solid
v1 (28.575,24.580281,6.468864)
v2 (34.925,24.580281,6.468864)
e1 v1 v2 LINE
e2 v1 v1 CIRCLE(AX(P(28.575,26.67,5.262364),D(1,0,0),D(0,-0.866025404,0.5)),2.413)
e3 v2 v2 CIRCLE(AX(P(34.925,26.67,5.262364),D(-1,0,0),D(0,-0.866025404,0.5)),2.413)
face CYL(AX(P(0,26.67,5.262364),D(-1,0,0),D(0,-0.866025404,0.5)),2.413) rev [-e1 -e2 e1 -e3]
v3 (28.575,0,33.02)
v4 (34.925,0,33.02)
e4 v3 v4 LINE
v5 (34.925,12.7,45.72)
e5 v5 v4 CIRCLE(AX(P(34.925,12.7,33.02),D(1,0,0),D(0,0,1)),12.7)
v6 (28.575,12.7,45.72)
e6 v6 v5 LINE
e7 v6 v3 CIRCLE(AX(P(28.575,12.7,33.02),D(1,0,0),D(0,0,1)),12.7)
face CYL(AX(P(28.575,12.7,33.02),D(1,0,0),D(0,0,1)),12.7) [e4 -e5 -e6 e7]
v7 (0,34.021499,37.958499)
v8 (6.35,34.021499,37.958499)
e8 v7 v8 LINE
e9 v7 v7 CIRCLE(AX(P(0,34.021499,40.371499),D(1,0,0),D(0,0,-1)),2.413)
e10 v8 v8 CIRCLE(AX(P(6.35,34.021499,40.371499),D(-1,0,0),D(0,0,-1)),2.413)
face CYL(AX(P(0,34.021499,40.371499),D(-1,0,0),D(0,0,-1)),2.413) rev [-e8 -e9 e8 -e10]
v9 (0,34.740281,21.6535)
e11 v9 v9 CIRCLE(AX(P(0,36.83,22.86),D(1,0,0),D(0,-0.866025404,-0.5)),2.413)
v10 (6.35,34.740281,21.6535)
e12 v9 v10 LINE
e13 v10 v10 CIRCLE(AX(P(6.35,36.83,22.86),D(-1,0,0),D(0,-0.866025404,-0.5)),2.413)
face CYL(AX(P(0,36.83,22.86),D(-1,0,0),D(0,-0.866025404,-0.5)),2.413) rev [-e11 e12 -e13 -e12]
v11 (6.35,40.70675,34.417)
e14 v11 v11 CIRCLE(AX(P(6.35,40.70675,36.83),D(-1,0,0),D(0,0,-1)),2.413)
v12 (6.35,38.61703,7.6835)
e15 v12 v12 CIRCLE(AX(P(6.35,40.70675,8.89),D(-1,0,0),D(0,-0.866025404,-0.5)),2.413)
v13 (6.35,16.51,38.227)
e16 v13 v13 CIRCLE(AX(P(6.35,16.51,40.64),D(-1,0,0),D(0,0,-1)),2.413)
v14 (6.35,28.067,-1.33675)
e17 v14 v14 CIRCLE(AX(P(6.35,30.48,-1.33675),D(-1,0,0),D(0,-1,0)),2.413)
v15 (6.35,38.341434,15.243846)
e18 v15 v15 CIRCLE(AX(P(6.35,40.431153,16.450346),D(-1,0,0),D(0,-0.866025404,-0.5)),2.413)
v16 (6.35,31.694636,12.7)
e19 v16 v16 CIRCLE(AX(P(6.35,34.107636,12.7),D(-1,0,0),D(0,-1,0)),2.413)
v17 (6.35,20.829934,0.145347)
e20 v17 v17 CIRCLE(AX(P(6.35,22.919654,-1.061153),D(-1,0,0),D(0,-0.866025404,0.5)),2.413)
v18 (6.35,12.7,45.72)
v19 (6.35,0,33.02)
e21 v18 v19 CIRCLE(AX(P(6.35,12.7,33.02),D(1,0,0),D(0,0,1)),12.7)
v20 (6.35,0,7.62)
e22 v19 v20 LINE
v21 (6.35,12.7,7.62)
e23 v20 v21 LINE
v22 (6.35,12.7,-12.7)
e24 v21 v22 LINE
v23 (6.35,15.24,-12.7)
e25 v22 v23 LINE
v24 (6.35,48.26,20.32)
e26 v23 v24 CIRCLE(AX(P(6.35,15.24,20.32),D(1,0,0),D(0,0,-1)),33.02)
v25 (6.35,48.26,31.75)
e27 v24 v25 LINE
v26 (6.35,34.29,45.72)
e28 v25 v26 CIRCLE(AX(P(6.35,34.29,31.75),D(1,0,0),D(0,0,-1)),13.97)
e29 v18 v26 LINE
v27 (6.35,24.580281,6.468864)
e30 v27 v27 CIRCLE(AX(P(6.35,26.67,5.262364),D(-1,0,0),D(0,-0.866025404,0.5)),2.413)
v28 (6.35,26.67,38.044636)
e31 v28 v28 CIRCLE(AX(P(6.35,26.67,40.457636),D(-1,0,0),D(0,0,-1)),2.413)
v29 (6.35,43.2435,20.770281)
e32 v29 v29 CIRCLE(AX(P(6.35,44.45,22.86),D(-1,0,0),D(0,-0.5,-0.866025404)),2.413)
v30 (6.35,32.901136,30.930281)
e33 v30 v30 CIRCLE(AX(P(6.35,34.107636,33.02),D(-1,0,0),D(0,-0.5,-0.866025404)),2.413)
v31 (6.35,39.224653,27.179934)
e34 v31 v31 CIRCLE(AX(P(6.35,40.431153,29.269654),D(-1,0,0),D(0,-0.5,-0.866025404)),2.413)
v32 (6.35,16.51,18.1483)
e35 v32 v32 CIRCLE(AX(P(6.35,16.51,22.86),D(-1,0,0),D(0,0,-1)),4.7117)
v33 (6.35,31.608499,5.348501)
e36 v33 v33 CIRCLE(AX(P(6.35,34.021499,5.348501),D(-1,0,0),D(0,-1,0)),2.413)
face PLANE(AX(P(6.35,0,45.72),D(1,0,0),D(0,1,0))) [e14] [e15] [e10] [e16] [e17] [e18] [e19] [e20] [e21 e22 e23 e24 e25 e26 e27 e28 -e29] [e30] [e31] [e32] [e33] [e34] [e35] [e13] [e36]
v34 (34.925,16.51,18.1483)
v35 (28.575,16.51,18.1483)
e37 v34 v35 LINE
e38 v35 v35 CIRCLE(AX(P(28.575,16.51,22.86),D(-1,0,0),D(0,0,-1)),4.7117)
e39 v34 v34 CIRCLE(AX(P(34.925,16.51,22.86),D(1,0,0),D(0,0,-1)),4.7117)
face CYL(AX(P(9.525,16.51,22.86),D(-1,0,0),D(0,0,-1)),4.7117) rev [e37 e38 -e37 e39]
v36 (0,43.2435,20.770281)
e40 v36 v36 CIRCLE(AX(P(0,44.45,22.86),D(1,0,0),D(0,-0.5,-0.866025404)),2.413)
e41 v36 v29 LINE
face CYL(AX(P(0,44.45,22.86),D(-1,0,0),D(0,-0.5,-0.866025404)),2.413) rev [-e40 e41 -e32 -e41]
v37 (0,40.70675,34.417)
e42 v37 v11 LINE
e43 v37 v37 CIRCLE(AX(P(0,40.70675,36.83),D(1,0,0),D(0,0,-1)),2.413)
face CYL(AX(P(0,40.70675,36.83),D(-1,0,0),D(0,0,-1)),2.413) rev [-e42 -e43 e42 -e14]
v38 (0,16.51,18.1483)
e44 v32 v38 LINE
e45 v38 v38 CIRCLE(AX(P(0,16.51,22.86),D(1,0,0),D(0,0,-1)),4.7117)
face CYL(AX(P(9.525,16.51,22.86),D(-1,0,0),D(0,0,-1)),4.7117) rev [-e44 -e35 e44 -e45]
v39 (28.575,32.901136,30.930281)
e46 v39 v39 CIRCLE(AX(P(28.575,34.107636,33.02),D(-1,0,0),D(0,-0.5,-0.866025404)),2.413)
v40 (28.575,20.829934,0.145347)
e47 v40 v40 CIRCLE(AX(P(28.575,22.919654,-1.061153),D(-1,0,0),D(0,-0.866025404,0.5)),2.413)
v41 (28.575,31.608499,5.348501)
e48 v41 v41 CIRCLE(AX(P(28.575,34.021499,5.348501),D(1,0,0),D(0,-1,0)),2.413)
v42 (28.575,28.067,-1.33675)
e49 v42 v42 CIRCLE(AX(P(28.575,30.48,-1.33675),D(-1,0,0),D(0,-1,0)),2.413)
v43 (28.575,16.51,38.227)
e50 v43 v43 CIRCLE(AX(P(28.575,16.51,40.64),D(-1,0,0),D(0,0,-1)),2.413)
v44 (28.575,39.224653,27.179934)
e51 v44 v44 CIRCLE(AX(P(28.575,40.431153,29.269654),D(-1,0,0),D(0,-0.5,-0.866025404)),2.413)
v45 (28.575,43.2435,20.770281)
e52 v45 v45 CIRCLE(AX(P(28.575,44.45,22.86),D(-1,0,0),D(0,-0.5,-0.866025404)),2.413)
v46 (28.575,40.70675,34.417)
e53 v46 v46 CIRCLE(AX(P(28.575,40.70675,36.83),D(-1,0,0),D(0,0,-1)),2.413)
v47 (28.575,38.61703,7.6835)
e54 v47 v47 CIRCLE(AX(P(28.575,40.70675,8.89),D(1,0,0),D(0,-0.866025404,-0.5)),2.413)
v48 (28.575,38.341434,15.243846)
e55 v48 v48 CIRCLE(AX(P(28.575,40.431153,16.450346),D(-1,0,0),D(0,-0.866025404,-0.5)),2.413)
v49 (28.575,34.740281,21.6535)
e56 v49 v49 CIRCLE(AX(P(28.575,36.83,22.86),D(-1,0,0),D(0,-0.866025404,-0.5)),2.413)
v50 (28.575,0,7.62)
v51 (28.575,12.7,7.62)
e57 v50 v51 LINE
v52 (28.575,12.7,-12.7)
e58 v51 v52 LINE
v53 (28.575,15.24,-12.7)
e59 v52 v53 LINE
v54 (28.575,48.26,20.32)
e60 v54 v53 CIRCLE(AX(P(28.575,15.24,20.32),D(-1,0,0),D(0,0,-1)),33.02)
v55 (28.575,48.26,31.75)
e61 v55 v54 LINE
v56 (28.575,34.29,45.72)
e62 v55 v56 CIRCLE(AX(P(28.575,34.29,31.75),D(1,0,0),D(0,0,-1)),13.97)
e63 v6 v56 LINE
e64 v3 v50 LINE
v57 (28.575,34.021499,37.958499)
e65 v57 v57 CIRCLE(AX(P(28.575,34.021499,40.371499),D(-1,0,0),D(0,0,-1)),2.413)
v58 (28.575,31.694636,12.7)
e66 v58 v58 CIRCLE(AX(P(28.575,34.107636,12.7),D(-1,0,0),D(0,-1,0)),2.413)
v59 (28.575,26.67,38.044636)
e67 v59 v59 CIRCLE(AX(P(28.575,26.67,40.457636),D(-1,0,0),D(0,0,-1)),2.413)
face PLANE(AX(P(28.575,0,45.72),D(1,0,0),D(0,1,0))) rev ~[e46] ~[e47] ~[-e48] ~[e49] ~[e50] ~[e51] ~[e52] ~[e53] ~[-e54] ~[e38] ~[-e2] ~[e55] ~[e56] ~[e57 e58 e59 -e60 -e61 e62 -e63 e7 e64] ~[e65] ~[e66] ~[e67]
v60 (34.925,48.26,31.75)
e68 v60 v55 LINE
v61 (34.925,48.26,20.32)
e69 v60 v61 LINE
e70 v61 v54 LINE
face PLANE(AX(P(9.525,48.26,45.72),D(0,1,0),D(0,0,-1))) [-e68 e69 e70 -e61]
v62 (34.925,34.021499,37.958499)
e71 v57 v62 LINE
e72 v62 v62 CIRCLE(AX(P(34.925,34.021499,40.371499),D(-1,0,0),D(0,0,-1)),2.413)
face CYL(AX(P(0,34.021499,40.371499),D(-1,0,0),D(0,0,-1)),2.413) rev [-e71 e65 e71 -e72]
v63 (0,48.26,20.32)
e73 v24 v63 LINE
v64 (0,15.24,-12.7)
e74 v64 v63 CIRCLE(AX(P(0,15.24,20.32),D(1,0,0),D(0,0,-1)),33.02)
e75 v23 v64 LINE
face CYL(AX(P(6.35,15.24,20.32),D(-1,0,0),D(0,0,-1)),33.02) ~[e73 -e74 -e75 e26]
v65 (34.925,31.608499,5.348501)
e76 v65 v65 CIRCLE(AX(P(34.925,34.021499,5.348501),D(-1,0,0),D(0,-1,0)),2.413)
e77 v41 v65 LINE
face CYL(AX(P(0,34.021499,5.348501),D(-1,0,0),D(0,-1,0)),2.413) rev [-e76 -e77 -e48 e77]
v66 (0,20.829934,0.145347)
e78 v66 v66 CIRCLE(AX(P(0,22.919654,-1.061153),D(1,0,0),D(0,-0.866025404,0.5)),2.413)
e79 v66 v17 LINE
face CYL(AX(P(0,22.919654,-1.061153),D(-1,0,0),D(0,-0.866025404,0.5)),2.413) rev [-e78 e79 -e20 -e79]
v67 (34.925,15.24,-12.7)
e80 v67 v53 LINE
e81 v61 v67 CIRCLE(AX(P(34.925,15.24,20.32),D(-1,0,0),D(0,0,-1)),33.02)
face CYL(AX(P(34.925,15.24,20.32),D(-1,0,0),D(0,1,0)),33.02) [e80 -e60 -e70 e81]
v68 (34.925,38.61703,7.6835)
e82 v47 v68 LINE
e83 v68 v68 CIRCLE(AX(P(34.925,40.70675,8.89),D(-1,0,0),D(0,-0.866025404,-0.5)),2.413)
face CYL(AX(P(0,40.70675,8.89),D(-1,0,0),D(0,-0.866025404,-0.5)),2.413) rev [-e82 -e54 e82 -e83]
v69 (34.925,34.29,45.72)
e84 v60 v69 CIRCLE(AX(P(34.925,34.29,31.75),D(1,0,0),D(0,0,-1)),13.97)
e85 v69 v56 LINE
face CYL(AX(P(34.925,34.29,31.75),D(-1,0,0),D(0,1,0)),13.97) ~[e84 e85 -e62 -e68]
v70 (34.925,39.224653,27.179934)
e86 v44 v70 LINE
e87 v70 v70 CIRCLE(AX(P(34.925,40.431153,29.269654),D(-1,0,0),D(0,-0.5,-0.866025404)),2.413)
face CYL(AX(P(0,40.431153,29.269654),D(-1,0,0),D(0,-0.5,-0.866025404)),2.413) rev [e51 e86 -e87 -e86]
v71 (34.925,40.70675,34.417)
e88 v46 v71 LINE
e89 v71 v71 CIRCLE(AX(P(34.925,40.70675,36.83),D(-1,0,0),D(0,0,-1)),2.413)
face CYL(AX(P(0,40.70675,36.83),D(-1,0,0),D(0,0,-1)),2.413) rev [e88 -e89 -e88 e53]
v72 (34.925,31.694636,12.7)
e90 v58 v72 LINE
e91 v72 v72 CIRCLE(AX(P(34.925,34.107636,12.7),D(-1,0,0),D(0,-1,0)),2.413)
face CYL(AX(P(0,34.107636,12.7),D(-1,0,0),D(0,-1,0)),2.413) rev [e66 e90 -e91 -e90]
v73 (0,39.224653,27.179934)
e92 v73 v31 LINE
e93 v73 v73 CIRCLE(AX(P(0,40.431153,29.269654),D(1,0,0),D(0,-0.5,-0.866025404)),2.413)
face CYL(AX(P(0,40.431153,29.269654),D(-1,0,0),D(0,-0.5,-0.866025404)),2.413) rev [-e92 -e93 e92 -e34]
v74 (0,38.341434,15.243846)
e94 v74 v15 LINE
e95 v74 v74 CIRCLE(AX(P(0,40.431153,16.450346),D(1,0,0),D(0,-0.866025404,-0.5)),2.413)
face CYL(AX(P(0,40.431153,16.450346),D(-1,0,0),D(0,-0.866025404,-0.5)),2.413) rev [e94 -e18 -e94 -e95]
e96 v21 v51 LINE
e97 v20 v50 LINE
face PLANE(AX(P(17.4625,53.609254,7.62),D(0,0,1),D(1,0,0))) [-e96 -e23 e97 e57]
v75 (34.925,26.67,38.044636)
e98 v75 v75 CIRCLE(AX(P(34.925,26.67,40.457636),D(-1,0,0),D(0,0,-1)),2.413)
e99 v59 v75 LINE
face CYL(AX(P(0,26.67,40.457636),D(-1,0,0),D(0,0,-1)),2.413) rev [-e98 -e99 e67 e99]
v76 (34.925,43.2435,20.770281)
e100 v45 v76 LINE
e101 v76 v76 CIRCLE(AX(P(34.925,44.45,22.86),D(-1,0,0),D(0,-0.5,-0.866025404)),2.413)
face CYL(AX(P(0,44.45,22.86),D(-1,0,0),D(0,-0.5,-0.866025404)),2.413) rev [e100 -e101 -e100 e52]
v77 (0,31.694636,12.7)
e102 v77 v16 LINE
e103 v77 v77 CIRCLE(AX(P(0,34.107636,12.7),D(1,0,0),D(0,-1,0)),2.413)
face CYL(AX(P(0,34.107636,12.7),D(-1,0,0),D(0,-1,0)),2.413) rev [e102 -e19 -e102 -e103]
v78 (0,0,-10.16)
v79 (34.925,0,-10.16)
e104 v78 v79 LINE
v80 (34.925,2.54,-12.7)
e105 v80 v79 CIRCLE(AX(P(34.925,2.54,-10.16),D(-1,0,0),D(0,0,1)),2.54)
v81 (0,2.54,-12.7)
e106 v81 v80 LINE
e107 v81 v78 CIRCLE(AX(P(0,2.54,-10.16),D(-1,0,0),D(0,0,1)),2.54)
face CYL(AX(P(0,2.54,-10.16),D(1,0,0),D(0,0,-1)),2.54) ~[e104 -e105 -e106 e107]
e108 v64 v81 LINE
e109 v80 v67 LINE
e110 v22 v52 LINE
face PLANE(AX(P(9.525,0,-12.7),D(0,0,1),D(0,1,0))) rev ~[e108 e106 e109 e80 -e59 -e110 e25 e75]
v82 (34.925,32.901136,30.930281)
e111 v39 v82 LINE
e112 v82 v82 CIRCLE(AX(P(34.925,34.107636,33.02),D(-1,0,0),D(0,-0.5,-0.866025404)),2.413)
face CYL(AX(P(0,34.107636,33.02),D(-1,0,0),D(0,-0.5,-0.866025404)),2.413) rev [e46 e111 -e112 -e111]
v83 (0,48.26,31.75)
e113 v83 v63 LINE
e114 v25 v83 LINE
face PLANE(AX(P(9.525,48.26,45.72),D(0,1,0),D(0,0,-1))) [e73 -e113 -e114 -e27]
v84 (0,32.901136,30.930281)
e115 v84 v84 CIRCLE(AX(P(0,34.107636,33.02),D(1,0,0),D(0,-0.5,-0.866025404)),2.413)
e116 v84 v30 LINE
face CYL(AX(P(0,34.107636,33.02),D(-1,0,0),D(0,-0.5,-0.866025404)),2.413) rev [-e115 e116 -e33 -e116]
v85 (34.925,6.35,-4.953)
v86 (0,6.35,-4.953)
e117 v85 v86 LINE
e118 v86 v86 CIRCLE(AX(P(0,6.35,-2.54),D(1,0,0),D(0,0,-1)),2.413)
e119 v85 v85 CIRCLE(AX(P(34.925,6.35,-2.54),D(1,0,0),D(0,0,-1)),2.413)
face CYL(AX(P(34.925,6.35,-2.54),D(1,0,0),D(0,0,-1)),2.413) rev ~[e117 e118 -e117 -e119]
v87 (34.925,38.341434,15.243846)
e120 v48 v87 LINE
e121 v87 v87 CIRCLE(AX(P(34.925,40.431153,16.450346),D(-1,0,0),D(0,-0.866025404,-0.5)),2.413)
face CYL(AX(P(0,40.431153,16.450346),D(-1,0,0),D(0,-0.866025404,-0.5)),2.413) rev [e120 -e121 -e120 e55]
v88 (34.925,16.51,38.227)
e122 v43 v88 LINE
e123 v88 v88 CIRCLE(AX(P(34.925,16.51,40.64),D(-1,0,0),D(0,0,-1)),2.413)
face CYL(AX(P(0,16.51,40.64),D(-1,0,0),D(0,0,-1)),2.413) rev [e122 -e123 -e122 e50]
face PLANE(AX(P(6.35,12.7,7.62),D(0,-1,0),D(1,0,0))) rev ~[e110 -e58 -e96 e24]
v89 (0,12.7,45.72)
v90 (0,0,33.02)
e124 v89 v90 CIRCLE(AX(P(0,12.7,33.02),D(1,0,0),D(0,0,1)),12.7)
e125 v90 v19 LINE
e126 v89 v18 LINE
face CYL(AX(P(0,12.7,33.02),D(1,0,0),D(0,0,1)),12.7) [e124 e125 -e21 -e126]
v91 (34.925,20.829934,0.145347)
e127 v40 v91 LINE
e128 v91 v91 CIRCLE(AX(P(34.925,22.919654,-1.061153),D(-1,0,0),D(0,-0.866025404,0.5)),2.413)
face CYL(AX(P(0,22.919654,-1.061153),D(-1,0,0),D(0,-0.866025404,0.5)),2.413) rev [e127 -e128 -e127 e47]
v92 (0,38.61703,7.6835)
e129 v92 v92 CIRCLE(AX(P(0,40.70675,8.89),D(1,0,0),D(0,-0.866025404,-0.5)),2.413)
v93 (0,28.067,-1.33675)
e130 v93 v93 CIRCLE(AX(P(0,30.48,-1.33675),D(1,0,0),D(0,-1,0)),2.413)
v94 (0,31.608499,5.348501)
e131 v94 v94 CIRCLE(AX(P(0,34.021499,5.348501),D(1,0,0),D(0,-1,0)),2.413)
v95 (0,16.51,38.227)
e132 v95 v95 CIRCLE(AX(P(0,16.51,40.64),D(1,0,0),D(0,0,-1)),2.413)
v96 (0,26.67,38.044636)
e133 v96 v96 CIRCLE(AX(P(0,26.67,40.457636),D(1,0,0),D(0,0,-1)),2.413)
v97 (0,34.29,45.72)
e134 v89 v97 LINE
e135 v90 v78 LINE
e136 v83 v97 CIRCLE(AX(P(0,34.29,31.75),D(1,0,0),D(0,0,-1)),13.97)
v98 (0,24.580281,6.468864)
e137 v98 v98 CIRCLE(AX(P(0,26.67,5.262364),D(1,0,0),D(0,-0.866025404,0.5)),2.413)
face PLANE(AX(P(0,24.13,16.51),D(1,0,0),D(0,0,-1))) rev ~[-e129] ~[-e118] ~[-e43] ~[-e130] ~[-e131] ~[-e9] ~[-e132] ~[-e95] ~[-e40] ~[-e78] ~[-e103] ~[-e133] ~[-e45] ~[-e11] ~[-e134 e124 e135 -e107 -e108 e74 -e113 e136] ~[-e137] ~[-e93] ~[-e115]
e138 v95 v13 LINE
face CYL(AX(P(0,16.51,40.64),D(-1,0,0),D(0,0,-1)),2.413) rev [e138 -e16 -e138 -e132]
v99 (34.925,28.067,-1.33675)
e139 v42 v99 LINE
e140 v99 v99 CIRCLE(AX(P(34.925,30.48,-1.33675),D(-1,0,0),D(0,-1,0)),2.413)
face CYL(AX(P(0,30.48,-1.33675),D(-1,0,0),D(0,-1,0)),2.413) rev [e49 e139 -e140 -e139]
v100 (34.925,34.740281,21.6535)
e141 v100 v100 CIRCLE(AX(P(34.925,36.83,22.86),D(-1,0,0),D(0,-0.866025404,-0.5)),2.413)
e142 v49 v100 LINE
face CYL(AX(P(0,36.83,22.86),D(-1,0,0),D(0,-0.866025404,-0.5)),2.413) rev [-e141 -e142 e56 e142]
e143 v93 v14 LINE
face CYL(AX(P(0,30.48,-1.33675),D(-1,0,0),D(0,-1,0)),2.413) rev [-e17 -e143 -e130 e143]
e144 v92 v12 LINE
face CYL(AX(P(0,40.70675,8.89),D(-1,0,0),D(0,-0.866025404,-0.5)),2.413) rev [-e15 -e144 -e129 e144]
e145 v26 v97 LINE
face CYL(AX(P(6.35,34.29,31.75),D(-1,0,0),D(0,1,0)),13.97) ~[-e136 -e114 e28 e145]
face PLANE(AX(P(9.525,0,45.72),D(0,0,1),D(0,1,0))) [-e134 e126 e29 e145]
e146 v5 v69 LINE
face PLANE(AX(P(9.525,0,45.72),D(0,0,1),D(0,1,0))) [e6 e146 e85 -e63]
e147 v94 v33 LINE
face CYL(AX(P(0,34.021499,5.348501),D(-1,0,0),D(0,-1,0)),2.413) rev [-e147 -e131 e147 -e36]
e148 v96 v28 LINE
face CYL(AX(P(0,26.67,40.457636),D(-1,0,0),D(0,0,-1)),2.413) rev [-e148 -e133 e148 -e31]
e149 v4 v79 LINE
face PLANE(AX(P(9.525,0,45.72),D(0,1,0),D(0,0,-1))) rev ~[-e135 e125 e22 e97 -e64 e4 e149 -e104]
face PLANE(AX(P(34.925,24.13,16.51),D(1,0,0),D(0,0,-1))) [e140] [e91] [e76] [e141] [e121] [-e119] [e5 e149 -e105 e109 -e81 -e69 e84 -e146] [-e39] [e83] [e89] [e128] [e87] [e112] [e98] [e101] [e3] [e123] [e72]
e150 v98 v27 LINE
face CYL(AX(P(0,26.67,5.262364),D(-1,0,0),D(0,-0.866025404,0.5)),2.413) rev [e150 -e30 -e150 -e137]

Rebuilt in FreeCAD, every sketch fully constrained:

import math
import FreeCAD as App
import Part
import Sketcher
Q = App.Units.Quantity


def edges_at(feature, points):
    """Names of the edges that pass closest to the given points."""
    edges = feature.Shape.Edges
    near = lambda p: min(range(len(edges)), key=lambda i: edges[i].distToShape(Part.Vertex(*p))[0])
    return sorted({f"Edge{near(p) + 1}" for p in points})


def add_polygon(sketch, points):
    """Adds a closed chain of lines whose ends are joined by coincident constraints."""
    first, n = sketch.GeometryCount, len(points)
    for a, b in zip(points, points[1:] + points[:1]):
        sketch.addGeometry(Part.LineSegment(App.Vector(*a, 0), App.Vector(*b, 0)), False)
    for i in range(n):
        sketch.addConstraint(Sketcher.Constraint("Coincident", first + i, 2, first + (i + 1) % n, 1))

doc = App.newDocument("Part")
body = doc.addObject("PartDesign::Body", "Body")

# Sketch on YZ plane
sketch1 = body.newObject("Sketcher::SketchObject", "Sketch")
sketch1.AttachmentSupport = (doc.getObject("YZ_Plane"), [""])
sketch1.MapMode = "FlatFace"
sketch1.addGeometry(Part.LineSegment(App.Vector(15.2, 12.7, 0), App.Vector(0, 12.7, 0)), False)
sketch1.addGeometry(Part.LineSegment(App.Vector(0, 12.7, 0), App.Vector(0, -156.2, 0)), False)
sketch1.addGeometry(Part.LineSegment(App.Vector(0, -156.2, 0), App.Vector(16.5, -156.2, 0)), False)
sketch1.addGeometry(Part.ArcOfCircle(Part.Circle(App.Vector(16.5, -147.3, 0), App.Vector(0, 0, 1), 8.9), math.radians(-90), math.radians(90)), False)
sketch1.addGeometry(Part.LineSegment(App.Vector(16.5, -138.4, 0), App.Vector(15.2, -138.4, 0)), False)
sketch1.addGeometry(Part.LineSegment(App.Vector(15.2, -138.4, 0), App.Vector(15.2, 12.7, 0)), False)
sketch1.addConstraint(Sketcher.Constraint("Coincident", 0, 2, 1, 1))
sketch1.addConstraint(Sketcher.Constraint("Coincident", 1, 2, 2, 1))
sketch1.addConstraint(Sketcher.Constraint("Tangent", 2, 2, 3, 1))
sketch1.addConstraint(Sketcher.Constraint("Tangent", 3, 2, 4, 1))
sketch1.addConstraint(Sketcher.Constraint("Coincident", 4, 2, 5, 1))
sketch1.addConstraint(Sketcher.Constraint("Coincident", 5, 2, 0, 1))
sketch1.addConstraint(Sketcher.Constraint("Horizontal", 0))
sketch1.addConstraint(Sketcher.Constraint("Vertical", 1))
sketch1.addConstraint(Sketcher.Constraint("Horizontal", 2))
sketch1.addConstraint(Sketcher.Constraint("Horizontal", 4))
sketch1.addConstraint(Sketcher.Constraint("Vertical", 5))
sketch1.addConstraint(Sketcher.Constraint("PointOnObject", 0, 2, -2))
sketch1.addConstraint(Sketcher.Constraint("Radius", 3, Q("0.35 in")))
sketch1.addConstraint(Sketcher.Constraint("DistanceX", 0, 2, 0, 1, Q("0.6 in")))
sketch1.addConstraint(Sketcher.Constraint("DistanceX", 2, 1, 2, 2, Q("0.65 in")))
sketch1.addConstraint(Sketcher.Constraint("DistanceY", 1, 2, 1, 1, Q("6.65 in")))
sketch1.addConstraint(Sketcher.Constraint("DistanceY", 3, 3, -1, 1, Q("5.8 in")))
pad1 = body.newObject("PartDesign::Pad", "Pad")
pad1.Profile = sketch1
pad1.Length = Q("0.375 in")

# Sketch on YZ plane
sketch2 = body.newObject("Sketcher::SketchObject", "Sketch001")
sketch2.AttachmentSupport = (doc.getObject("YZ_Plane"), [""])
sketch2.MapMode = "FlatFace"
sketch2.addGeometry(Part.Circle(App.Vector(16.5, -147.3, 0), App.Vector(0, 0, 1), 4), False)
sketch2.addConstraint(Sketcher.Constraint("Diameter", 0, Q("0.312 in")))
sketch2.addConstraint(Sketcher.Constraint("DistanceY", 0, 3, -1, 1, Q("5.8 in")))
sketch2.addConstraint(Sketcher.Constraint("DistanceX", -1, 1, 0, 3, Q("0.65 in")))
pocket1 = body.newObject("PartDesign::Pocket", "Pocket")
pocket1.Profile = sketch2
pocket1.Length = Q("0.375 in")
pocket1.Reversed = True

# Sketch on YZ plane
sketch3 = body.newObject("Sketcher::SketchObject", "Sketch002")
sketch3.AttachmentSupport = (doc.getObject("YZ_Plane"), [""])
sketch3.MapMode = "FlatFace"
add_polygon(sketch3, [(15, 6), (9, 6), (9, -13), (15, -13)])  # lines 0-3
add_polygon(sketch3, [(15, -44), (9, -44), (9, -69), (15, -69)])  # lines 4-7
sketch3.addConstraint(Sketcher.Constraint("Horizontal", 0))
sketch3.addConstraint(Sketcher.Constraint("Vertical", 1))
sketch3.addConstraint(Sketcher.Constraint("Horizontal", 2))
sketch3.addConstraint(Sketcher.Constraint("Vertical", 3))
sketch3.addConstraint(Sketcher.Constraint("Horizontal", 4))
sketch3.addConstraint(Sketcher.Constraint("Vertical", 5))
sketch3.addConstraint(Sketcher.Constraint("Horizontal", 6))
sketch3.addConstraint(Sketcher.Constraint("Vertical", 7))
sketch3.addConstraint(Sketcher.Constraint("Vertical", 1, 2, 4, 2))
sketch3.addConstraint(Sketcher.Constraint("Vertical", 3, 2, 6, 2))
sketch3.addConstraint(Sketcher.Constraint("DistanceY", 5, 2, 5, 1, Q("1 in")))
sketch3.addConstraint(Sketcher.Constraint("DistanceX", 0, 2, 0, 1, Q("0.25 in")))
sketch3.addConstraint(Sketcher.Constraint("DistanceY", 1, 2, 1, 1, Q("0.75 in")))
sketch3.addConstraint(Sketcher.Constraint("DistanceY", 1, 2, -1, 1, Q("0.5 in")))
sketch3.addConstraint(Sketcher.Constraint("DistanceX", -1, 1, 2, 2, Q("0.6 in")))
sketch3.addConstraint(Sketcher.Constraint("DistanceY", 4, 2, -1, 1, Q("1.725 in")))
pocket2 = body.newObject("PartDesign::Pocket", "Pocket001")
pocket2.Profile = sketch3
pocket2.Length = Q("0.375 in")
pocket2.Reversed = True
doc.recompute()

fillet = body.newObject("PartDesign::Fillet", "Fillet")
fillet.Base = (pocket2, edges_at(pocket2, [(4.763, 0, -156.21)]))
fillet.Radius = Q("0.5 in")
doc.recompute()

fillet2 = body.newObject("PartDesign::Fillet", "Fillet001")
fillet2.Base = (fillet, edges_at(fillet, [(4.763, 15.24, -138.43)]))
fillet2.Radius = Q("0.5 in")

# Sketch on YZ plane
sketch4 = body.newObject("Sketcher::SketchObject", "Sketch003")
sketch4.AttachmentSupport = (doc.getObject("YZ_Plane"), [""])
sketch4.MapMode = "FlatFace"
add_polygon(sketch4, [(25, -57), (0, -57), (0, -156), (25, -156)])  # lines 0-3
sketch4.addConstraint(Sketcher.Constraint("Horizontal", 0))
sketch4.addConstraint(Sketcher.Constraint("Vertical", 1))
sketch4.addConstraint(Sketcher.Constraint("Horizontal", 2))
sketch4.addConstraint(Sketcher.Constraint("Vertical", 3))
sketch4.addConstraint(Sketcher.Constraint("PointOnObject", 0, 2, -2))
sketch4.addConstraint(Sketcher.Constraint("DistanceX", 0, 2, 0, 1, Q("1 in")))
sketch4.addConstraint(Sketcher.Constraint("DistanceY", 1, 2, 1, 1, Q("3.925 in")))
sketch4.addConstraint(Sketcher.Constraint("DistanceY", 1, 2, -1, 1, Q("6.15 in")))
pocket3 = body.newObject("PartDesign::Pocket", "Pocket002")
pocket3.Profile = sketch4
pocket3.Type = "ThroughAll"
pocket3.Reversed = True

# Sketch on YZ plane
sketch5 = body.newObject("Sketcher::SketchObject", "Sketch004")
sketch5.AttachmentSupport = (doc.getObject("YZ_Plane"), [""])
sketch5.MapMode = "FlatFace"
add_polygon(sketch5, [(15.2, -50.2), (15.2, -43.8), (0, -43.8), (0, -66.7), (15.2, -66.7), (15.2, -62.9), (8.9, -62.9), (8.9, -50.2)])  # lines 0-7
sketch5.addConstraint(Sketcher.Constraint("Vertical", 0))
sketch5.addConstraint(Sketcher.Constraint("Horizontal", 1))
sketch5.addConstraint(Sketcher.Constraint("Vertical", 2))
sketch5.addConstraint(Sketcher.Constraint("Horizontal", 3))
sketch5.addConstraint(Sketcher.Constraint("Vertical", 4))
sketch5.addConstraint(Sketcher.Constraint("Horizontal", 5))
sketch5.addConstraint(Sketcher.Constraint("Vertical", 6))
sketch5.addConstraint(Sketcher.Constraint("Horizontal", 7))
sketch5.addConstraint(Sketcher.Constraint("PointOnObject", 1, 2, -2))
sketch5.addConstraint(Sketcher.Constraint("Vertical", 0, 2, 3, 2))
sketch5.addConstraint(Sketcher.Constraint("Equal", 7, 0))
sketch5.addConstraint(Sketcher.Constraint("DistanceX", 1, 2, 1, 1, Q("0.6 in")))
sketch5.addConstraint(Sketcher.Constraint("DistanceY", 2, 2, 2, 1, Q("0.9 in")))
sketch5.addConstraint(Sketcher.Constraint("DistanceY", 6, 1, 6, 2, Q("0.5 in")))
sketch5.addConstraint(Sketcher.Constraint("DistanceX", 5, 2, 5, 1, Q("0.25 in")))
sketch5.addConstraint(Sketcher.Constraint("DistanceY", 0, 2, -1, 1, Q("1.725 in")))
pad2 = body.newObject("PartDesign::Pad", "Pad001")
pad2.Profile = sketch5
pad2.Length = Q("0.375 in")
doc.recompute()

fillet3 = body.newObject("PartDesign::Fillet", "Fillet002")
fillet3.Base = (pad2, edges_at(pad2, [(4.763, 15.24, -66.675), (4.763, 0, -66.675)]))
fillet3.Radius = Q("0.125 in")

# Sketch on YZ plane
sketch6 = body.newObject("Sketcher::SketchObject", "Sketch005")
sketch6.AttachmentSupport = (doc.getObject("YZ_Plane"), [""])
sketch6.MapMode = "FlatFace"
add_polygon(sketch6, [(27.9, 35.6), (0, 35.6), (0, 12.7), (27.9, 12.7)])  # lines 0-3
sketch6.addGeometry(Part.Circle(App.Vector(16.5, 22.9, 0), App.Vector(0, 0, 1), 4.7), False)  # 4
sketch6.addConstraint(Sketcher.Constraint("Horizontal", 0))
sketch6.addConstraint(Sketcher.Constraint("Vertical", 1))
sketch6.addConstraint(Sketcher.Constraint("Horizontal", 2))
sketch6.addConstraint(Sketcher.Constraint("Vertical", 3))
sketch6.addConstraint(Sketcher.Constraint("PointOnObject", 0, 2, -2))
sketch6.addConstraint(Sketcher.Constraint("Diameter", 4, Q("0.371 in")))
sketch6.addConstraint(Sketcher.Constraint("DistanceX", 0, 2, 0, 1, Q("1.1 in")))
sketch6.addConstraint(Sketcher.Constraint("DistanceY", 1, 2, 1, 1, Q("0.9 in")))
sketch6.addConstraint(Sketcher.Constraint("DistanceY", -1, 1, 4, 3, Q("0.9 in")))
sketch6.addConstraint(Sketcher.Constraint("DistanceY", -1, 1, 0, 2, Q("1.4 in")))
sketch6.addConstraint(Sketcher.Constraint("DistanceX", -1, 1, 4, 3, Q("0.65 in")))
pad3 = body.newObject("PartDesign::Pad", "Pad002")
pad3.Profile = sketch6
pad3.Length = Q("0.375 in")

# Sketch on YZ plane
sketch7 = body.newObject("Sketcher::SketchObject", "Sketch006")
sketch7.AttachmentSupport = (doc.getObject("YZ_Plane"), [""])
sketch7.MapMode = "FlatFace"
add_polygon(sketch7, [(15, -13), (0, -13), (0, -67), (15, -67)])  # lines 0-3
sketch7.addConstraint(Sketcher.Constraint("Horizontal", 0))
sketch7.addConstraint(Sketcher.Constraint("Vertical", 1))
sketch7.addConstraint(Sketcher.Constraint("Horizontal", 2))
sketch7.addConstraint(Sketcher.Constraint("Vertical", 3))
sketch7.addConstraint(Sketcher.Constraint("PointOnObject", 0, 2, -2))
sketch7.addConstraint(Sketcher.Constraint("DistanceX", 0, 2, 0, 1, Q("0.6 in")))
sketch7.addConstraint(Sketcher.Constraint("DistanceY", 0, 2, -1, 1, Q("0.5 in")))
sketch7.addConstraint(Sketcher.Constraint("DistanceY", 1, 2, 1, 1, Q("2.125 in")))
pocket4 = body.newObject("PartDesign::Pocket", "Pocket003")
pocket4.Profile = sketch7
pocket4.Length = Q("0.375 in")
pocket4.Reversed = True

# Sketch on YZ plane
sketch8 = body.newObject("Sketcher::SketchObject", "Sketch007")
sketch8.AttachmentSupport = (doc.getObject("YZ_Plane"), [""])
sketch8.MapMode = "FlatFace"
add_polygon(sketch8, [(48.3, 45.7), (0, 45.7), (0, -12.7), (48.3, -12.7)])  # lines 0-3
sketch8.addGeometry(Part.Circle(App.Vector(16.5, 22.9, 0), App.Vector(0, 0, 1), 4.7), False)  # 4
sketch8.addConstraint(Sketcher.Constraint("Horizontal", 0))
sketch8.addConstraint(Sketcher.Constraint("Vertical", 1))
sketch8.addConstraint(Sketcher.Constraint("Horizontal", 2))
sketch8.addConstraint(Sketcher.Constraint("Vertical", 3))
sketch8.addConstraint(Sketcher.Constraint("PointOnObject", 0, 2, -2))
sketch8.addConstraint(Sketcher.Constraint("Diameter", 4, Q("0.371 in")))
sketch8.addConstraint(Sketcher.Constraint("DistanceX", 0, 2, 0, 1, Q("1.9 in")))
sketch8.addConstraint(Sketcher.Constraint("DistanceY", 1, 2, 1, 1, Q("2.3 in")))
sketch8.addConstraint(Sketcher.Constraint("DistanceY", -1, 1, 4, 3, Q("0.9 in")))
sketch8.addConstraint(Sketcher.Constraint("DistanceY", -1, 1, 0, 2, Q("1.8 in")))
sketch8.addConstraint(Sketcher.Constraint("DistanceX", -1, 1, 4, 3, Q("0.65 in")))
pad4 = body.newObject("PartDesign::Pad", "Pad003")
pad4.Profile = sketch8
pad4.Length = Q("0.375 in")

# Sketch on YZ plane
sketch9 = body.newObject("Sketcher::SketchObject", "Sketch008")
sketch9.AttachmentSupport = (doc.getObject("YZ_Plane"), [""])
sketch9.MapMode = "FlatFace"
sketch9.AttachmentOffset = App.Placement(App.Vector(0, 0, 0.375 * 25.4), App.Rotation())
add_polygon(sketch9, [(48.3, 45.7), (0, 45.7), (0, -12.7), (48.3, -12.7)])  # lines 0-3
sketch9.addGeometry(Part.Circle(App.Vector(16.5, 22.9, 0), App.Vector(0, 0, 1), 4.7), False)  # 4
sketch9.addConstraint(Sketcher.Constraint("Horizontal", 0))
sketch9.addConstraint(Sketcher.Constraint("Vertical", 1))
sketch9.addConstraint(Sketcher.Constraint("Horizontal", 2))
sketch9.addConstraint(Sketcher.Constraint("Vertical", 3))
sketch9.addConstraint(Sketcher.Constraint("PointOnObject", 0, 2, -2))
sketch9.addConstraint(Sketcher.Constraint("Diameter", 4, Q("0.371 in")))
sketch9.addConstraint(Sketcher.Constraint("DistanceX", 0, 2, 0, 1, Q("1.9 in")))
sketch9.addConstraint(Sketcher.Constraint("DistanceY", 1, 2, 1, 1, Q("2.3 in")))
sketch9.addConstraint(Sketcher.Constraint("DistanceY", -1, 1, 4, 3, Q("0.9 in")))
sketch9.addConstraint(Sketcher.Constraint("DistanceY", -1, 1, 0, 2, Q("1.8 in")))
sketch9.addConstraint(Sketcher.Constraint("DistanceX", -1, 1, 4, 3, Q("0.65 in")))
pad5 = body.newObject("PartDesign::Pad", "Pad004")
pad5.Profile = sketch9
pad5.Length = Q("1 in")

# Sketch on YZ plane
sketch10 = body.newObject("Sketcher::SketchObject", "Sketch009")
sketch10.AttachmentSupport = (doc.getObject("YZ_Plane"), [""])
sketch10.MapMode = "FlatFace"
sketch10.addGeometry(Part.Circle(App.Vector(16.5, 40.6, 0), App.Vector(0, 0, 1), 2.4), False)
sketch10.addConstraint(Sketcher.Constraint("Diameter", 0, Q("0.19 in")))
sketch10.addConstraint(Sketcher.Constraint("DistanceY", -1, 1, 0, 3, Q("1.6 in")))
sketch10.addConstraint(Sketcher.Constraint("DistanceX", -1, 1, 0, 3, Q("0.65 in")))
pocket5 = body.newObject("PartDesign::Pocket", "Pocket004")
pocket5.Profile = sketch10
pocket5.Type = "ThroughAll"
pocket5.Reversed = True

# Sketch on YZ plane
sketch11 = body.newObject("Sketcher::SketchObject", "Sketch010")
sketch11.AttachmentSupport = (doc.getObject("YZ_Plane"), [""])
sketch11.MapMode = "FlatFace"
sketch11.addGeometry(Part.Circle(App.Vector(26.7, 40.5, 0), App.Vector(0, 0, 1), 2.4), False)
sketch11.addConstraint(Sketcher.Constraint("Diameter", 0, Q("0.19 in")))
sketch11.addConstraint(Sketcher.Constraint("DistanceX", -1, 1, 0, 3, Q("1.05 in")))
sketch11.addConstraint(Sketcher.Constraint("DistanceY", -1, 1, 0, 3, 40.457636))
pocket6 = body.newObject("PartDesign::Pocket", "Pocket005")
pocket6.Profile = sketch11
pocket6.Type = "ThroughAll"
pocket6.Reversed = True
doc.recompute()

datumline = body.newObject("PartDesign::Line", "DatumLine")
datumline.Placement = App.Placement(App.Vector(0, 16.51, 22.86), App.Rotation(App.Vector(0, 0, 1), App.Vector(-1, 0, 0)))
polarpattern = body.newObject("PartDesign::PolarPattern", "PolarPattern")
polarpattern.Originals = [pocket6]
polarpattern.Axis = (datumline, [""])
polarpattern.Angle = 120
polarpattern.Occurrences = 5
body.Tip = polarpattern

# Sketch on YZ plane
sketch12 = body.newObject("Sketcher::SketchObject", "Sketch011")
sketch12.AttachmentSupport = (doc.getObject("YZ_Plane"), [""])
sketch12.MapMode = "FlatFace"
sketch12.addGeometry(Part.Circle(App.Vector(34, 40.4, 0), App.Vector(0, 0, 1), 2.4), False)
sketch12.addConstraint(Sketcher.Constraint("Diameter", 0, Q("0.19 in")))
sketch12.addConstraint(Sketcher.Constraint("DistanceX", -1, 1, 0, 3, 34.021499))
sketch12.addConstraint(Sketcher.Constraint("DistanceY", -1, 1, 0, 3, 40.371499))
pocket7 = body.newObject("PartDesign::Pocket", "Pocket006")
pocket7.Profile = sketch12
pocket7.Type = "ThroughAll"
pocket7.Reversed = True
doc.recompute()

datumline2 = body.newObject("PartDesign::Line", "DatumLine001")
datumline2.Placement = App.Placement(App.Vector(0, 16.51, 22.86), App.Rotation(App.Vector(0, 0, 1), App.Vector(-1, 0, 0)))
polarpattern2 = body.newObject("PartDesign::PolarPattern", "PolarPattern001")
polarpattern2.Originals = [pocket7]
polarpattern2.Axis = (datumline2, [""])
polarpattern2.Angle = 120
polarpattern2.Occurrences = 5
body.Tip = polarpattern2

# Sketch on YZ plane
sketch13 = body.newObject("Sketcher::SketchObject", "Sketch012")
sketch13.AttachmentSupport = (doc.getObject("YZ_Plane"), [""])
sketch13.MapMode = "FlatFace"
sketch13.addGeometry(Part.Circle(App.Vector(40.7, 36.8, 0), App.Vector(0, 0, 1), 2.4), False)
sketch13.addConstraint(Sketcher.Constraint("Diameter", 0, Q("0.19 in")))
sketch13.addConstraint(Sketcher.Constraint("DistanceY", -1, 1, 0, 3, Q("1.45 in")))
sketch13.addConstraint(Sketcher.Constraint("DistanceX", -1, 1, 0, 3, 40.70675))
pocket8 = body.newObject("PartDesign::Pocket", "Pocket007")
pocket8.Profile = sketch13
pocket8.Type = "ThroughAll"
pocket8.Reversed = True
doc.recompute()

datumline3 = body.newObject("PartDesign::Line", "DatumLine002")
datumline3.Placement = App.Placement(App.Vector(0, 16.51, 22.86), App.Rotation(App.Vector(0, 0, 1), App.Vector(-1, 0, 0)))
polarpattern3 = body.newObject("PartDesign::PolarPattern", "PolarPattern002")
polarpattern3.Originals = [pocket8]
polarpattern3.Axis = (datumline3, [""])
polarpattern3.Angle = 90
polarpattern3.Occurrences = 4
body.Tip = polarpattern3

# Sketch on XY plane
sketch14 = body.newObject("Sketcher::SketchObject", "Sketch013")
sketch14.AttachmentSupport = (doc.getObject("XY_Plane"), [""])
sketch14.MapMode = "FlatFace"
sketch14.AttachmentOffset = App.Placement(App.Vector(0, 0, 1.8 * 25.4), App.Rotation())
add_polygon(sketch14, [(6, 107), (6, 0), (29, 0), (29, 107)])  # lines 0-3
sketch14.addConstraint(Sketcher.Constraint("Vertical", 0))
sketch14.addConstraint(Sketcher.Constraint("Horizontal", 1))
sketch14.addConstraint(Sketcher.Constraint("Vertical", 2))
sketch14.addConstraint(Sketcher.Constraint("Horizontal", 3))
sketch14.addConstraint(Sketcher.Constraint("PointOnObject", 0, 2, -1))
sketch14.addConstraint(Sketcher.Constraint("DistanceX", 1, 1, 1, 2, Q("0.875 in")))
sketch14.addConstraint(Sketcher.Constraint("DistanceX", -1, 1, 0, 2, Q("0.25 in")))
sketch14.addConstraint(Sketcher.Constraint("DistanceY", 0, 2, 0, 1, 107.218507))
pocket9 = body.newObject("PartDesign::Pocket", "Pocket008")
pocket9.Profile = sketch14
pocket9.Length = Q("1.5 in")

# Sketch on XY plane
sketch15 = body.newObject("Sketcher::SketchObject", "Sketch014")
sketch15.AttachmentSupport = (doc.getObject("XY_Plane"), [""])
sketch15.MapMode = "FlatFace"
sketch15.AttachmentOffset = App.Placement(App.Vector(0, 0, 0.3 * 25.4), App.Rotation())
add_polygon(sketch15, [(6, 48), (6, 13), (29, 13), (29, 48)])  # lines 0-3
sketch15.addConstraint(Sketcher.Constraint("Vertical", 0))
sketch15.addConstraint(Sketcher.Constraint("Horizontal", 1))
sketch15.addConstraint(Sketcher.Constraint("Vertical", 2))
sketch15.addConstraint(Sketcher.Constraint("Horizontal", 3))
sketch15.addConstraint(Sketcher.Constraint("DistanceY", 0, 2, 0, 1, Q("1.4 in")))
sketch15.addConstraint(Sketcher.Constraint("DistanceY", -1, 1, 0, 2, Q("0.5 in")))
sketch15.addConstraint(Sketcher.Constraint("DistanceX", 1, 1, 1, 2, Q("0.875 in")))
sketch15.addConstraint(Sketcher.Constraint("DistanceX", -1, 1, 0, 2, Q("0.25 in")))
pocket10 = body.newObject("PartDesign::Pocket", "Pocket009")
pocket10.Profile = sketch15
pocket10.Type = "ThroughAll"
doc.recompute()

fillet4 = body.newObject("PartDesign::Fillet", "Fillet003")
fillet4.Base = (pocket10, edges_at(pocket10, [(31.75, 0, 45.72), (3.175, 0, 45.72)]))
fillet4.Radius = Q("0.5 in")
doc.recompute()

fillet5 = body.newObject("PartDesign::Fillet", "Fillet004")
fillet5.Base = (fillet4, edges_at(fillet4, [(31.75, 48.26, -12.7), (3.175, 48.26, -12.7)]))
fillet5.Radius = Q("1.3 in")
doc.recompute()

fillet6 = body.newObject("PartDesign::Fillet", "Fillet005")
fillet6.Base = (fillet5, edges_at(fillet5, [(31.75, 48.26, 45.72), (3.175, 48.26, 45.72)]))
fillet6.Radius = Q("0.55 in")

# Sketch on YZ plane
sketch16 = body.newObject("Sketcher::SketchObject", "Sketch015")
sketch16.AttachmentSupport = (doc.getObject("YZ_Plane"), [""])
sketch16.MapMode = "FlatFace"
sketch16.AttachmentOffset = App.Placement(App.Vector(0, 0, 1.375 * 25.4), App.Rotation())
sketch16.addGeometry(Part.Circle(App.Vector(6.3, -2.5, 0), App.Vector(0, 0, 1), 2.4), False)
sketch16.addConstraint(Sketcher.Constraint("Diameter", 0, Q("0.19 in")))
sketch16.addConstraint(Sketcher.Constraint("DistanceY", 0, 3, -1, 1, Q("0.1 in")))
sketch16.addConstraint(Sketcher.Constraint("DistanceX", -1, 1, 0, 3, Q("0.25 in")))
pocket11 = body.newObject("PartDesign::Pocket", "Pocket010")
pocket11.Profile = sketch16
pocket11.Type = "ThroughAll"
doc.recompute()

fillet7 = body.newObject("PartDesign::Fillet", "Fillet006")
fillet7.Base = (pocket11, edges_at(pocket11, [(17.462, 0, -12.7)]))
fillet7.Radius = Q("0.1 in")

doc.recompute()
